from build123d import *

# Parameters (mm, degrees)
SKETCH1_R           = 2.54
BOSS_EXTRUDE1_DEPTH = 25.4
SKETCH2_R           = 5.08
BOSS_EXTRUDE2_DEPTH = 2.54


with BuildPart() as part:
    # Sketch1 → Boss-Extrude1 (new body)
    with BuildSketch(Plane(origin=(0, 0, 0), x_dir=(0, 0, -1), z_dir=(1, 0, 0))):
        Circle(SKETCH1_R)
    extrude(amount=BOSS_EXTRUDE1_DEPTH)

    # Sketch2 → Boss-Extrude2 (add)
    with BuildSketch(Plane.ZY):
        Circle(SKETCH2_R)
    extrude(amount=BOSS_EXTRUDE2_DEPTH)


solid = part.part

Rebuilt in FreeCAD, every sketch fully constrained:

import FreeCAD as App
import Part
import Sketcher
from FreeCAD import Vector
Q = App.Units.Quantity

doc = App.newDocument("Part")
params = doc.addObject("Spreadsheet::Sheet", "Params")
for row, (alias, value) in enumerate([
    ("sketch1_diameter", "0.2 in"),
    ("pad1_length", "1 in"),
    ("sketch2_diameter", "0.4 in"),
    ("pad2_length", "0.1 in"),
], start=1):
    params.set(f"A{row}", alias)
    params.set(f"B{row}", "=" + value)
    params.setAlias(f"B{row}", alias)

body = doc.addObject("PartDesign::Body", "Body")

# Sketch on YZ plane
sketch1 = body.newObject("Sketcher::SketchObject", "Sketch")
sketch1.AttachmentSupport = (doc.getObject("YZ_Plane"), [""])
sketch1.MapMode = "FlatFace"
sketch1.addGeometry(Part.Circle(Vector(0, 0, 0), Vector(0, 0, 1), 2.5), False)
sketch1.addConstraint(Sketcher.Constraint("Coincident", 0, 3, -1, 1))
sketch1.addConstraint(Sketcher.Constraint("Diameter", 0, Q("0.2 in")))
sketch1.setExpression("Constraints[1]", "Params.sketch1_diameter")
pad1 = body.newObject("PartDesign::Pad", "Pad")
pad1.Profile = sketch1
pad1.setExpression("Length", "Params.pad1_length")

# Sketch on YZ plane
sketch2 = body.newObject("Sketcher::SketchObject", "Sketch001")
sketch2.AttachmentSupport = (doc.getObject("YZ_Plane"), [""])
sketch2.MapMode = "FlatFace"
sketch2.addGeometry(Part.Circle(Vector(0, 0, 0), Vector(0, 0, 1), 5), False)
sketch2.addConstraint(Sketcher.Constraint("Coincident", 0, 3, -1, 1))
sketch2.addConstraint(Sketcher.Constraint("Diameter", 0, Q("0.4 in")))
sketch2.setExpression("Constraints[1]", "Params.sketch2_diameter")
pad2 = body.newObject("PartDesign::Pad", "Pad001")
pad2.Profile = sketch2
pad2.setExpression("Length", "Params.pad2_length")
pad2.Reversed = True

doc.recompute()
